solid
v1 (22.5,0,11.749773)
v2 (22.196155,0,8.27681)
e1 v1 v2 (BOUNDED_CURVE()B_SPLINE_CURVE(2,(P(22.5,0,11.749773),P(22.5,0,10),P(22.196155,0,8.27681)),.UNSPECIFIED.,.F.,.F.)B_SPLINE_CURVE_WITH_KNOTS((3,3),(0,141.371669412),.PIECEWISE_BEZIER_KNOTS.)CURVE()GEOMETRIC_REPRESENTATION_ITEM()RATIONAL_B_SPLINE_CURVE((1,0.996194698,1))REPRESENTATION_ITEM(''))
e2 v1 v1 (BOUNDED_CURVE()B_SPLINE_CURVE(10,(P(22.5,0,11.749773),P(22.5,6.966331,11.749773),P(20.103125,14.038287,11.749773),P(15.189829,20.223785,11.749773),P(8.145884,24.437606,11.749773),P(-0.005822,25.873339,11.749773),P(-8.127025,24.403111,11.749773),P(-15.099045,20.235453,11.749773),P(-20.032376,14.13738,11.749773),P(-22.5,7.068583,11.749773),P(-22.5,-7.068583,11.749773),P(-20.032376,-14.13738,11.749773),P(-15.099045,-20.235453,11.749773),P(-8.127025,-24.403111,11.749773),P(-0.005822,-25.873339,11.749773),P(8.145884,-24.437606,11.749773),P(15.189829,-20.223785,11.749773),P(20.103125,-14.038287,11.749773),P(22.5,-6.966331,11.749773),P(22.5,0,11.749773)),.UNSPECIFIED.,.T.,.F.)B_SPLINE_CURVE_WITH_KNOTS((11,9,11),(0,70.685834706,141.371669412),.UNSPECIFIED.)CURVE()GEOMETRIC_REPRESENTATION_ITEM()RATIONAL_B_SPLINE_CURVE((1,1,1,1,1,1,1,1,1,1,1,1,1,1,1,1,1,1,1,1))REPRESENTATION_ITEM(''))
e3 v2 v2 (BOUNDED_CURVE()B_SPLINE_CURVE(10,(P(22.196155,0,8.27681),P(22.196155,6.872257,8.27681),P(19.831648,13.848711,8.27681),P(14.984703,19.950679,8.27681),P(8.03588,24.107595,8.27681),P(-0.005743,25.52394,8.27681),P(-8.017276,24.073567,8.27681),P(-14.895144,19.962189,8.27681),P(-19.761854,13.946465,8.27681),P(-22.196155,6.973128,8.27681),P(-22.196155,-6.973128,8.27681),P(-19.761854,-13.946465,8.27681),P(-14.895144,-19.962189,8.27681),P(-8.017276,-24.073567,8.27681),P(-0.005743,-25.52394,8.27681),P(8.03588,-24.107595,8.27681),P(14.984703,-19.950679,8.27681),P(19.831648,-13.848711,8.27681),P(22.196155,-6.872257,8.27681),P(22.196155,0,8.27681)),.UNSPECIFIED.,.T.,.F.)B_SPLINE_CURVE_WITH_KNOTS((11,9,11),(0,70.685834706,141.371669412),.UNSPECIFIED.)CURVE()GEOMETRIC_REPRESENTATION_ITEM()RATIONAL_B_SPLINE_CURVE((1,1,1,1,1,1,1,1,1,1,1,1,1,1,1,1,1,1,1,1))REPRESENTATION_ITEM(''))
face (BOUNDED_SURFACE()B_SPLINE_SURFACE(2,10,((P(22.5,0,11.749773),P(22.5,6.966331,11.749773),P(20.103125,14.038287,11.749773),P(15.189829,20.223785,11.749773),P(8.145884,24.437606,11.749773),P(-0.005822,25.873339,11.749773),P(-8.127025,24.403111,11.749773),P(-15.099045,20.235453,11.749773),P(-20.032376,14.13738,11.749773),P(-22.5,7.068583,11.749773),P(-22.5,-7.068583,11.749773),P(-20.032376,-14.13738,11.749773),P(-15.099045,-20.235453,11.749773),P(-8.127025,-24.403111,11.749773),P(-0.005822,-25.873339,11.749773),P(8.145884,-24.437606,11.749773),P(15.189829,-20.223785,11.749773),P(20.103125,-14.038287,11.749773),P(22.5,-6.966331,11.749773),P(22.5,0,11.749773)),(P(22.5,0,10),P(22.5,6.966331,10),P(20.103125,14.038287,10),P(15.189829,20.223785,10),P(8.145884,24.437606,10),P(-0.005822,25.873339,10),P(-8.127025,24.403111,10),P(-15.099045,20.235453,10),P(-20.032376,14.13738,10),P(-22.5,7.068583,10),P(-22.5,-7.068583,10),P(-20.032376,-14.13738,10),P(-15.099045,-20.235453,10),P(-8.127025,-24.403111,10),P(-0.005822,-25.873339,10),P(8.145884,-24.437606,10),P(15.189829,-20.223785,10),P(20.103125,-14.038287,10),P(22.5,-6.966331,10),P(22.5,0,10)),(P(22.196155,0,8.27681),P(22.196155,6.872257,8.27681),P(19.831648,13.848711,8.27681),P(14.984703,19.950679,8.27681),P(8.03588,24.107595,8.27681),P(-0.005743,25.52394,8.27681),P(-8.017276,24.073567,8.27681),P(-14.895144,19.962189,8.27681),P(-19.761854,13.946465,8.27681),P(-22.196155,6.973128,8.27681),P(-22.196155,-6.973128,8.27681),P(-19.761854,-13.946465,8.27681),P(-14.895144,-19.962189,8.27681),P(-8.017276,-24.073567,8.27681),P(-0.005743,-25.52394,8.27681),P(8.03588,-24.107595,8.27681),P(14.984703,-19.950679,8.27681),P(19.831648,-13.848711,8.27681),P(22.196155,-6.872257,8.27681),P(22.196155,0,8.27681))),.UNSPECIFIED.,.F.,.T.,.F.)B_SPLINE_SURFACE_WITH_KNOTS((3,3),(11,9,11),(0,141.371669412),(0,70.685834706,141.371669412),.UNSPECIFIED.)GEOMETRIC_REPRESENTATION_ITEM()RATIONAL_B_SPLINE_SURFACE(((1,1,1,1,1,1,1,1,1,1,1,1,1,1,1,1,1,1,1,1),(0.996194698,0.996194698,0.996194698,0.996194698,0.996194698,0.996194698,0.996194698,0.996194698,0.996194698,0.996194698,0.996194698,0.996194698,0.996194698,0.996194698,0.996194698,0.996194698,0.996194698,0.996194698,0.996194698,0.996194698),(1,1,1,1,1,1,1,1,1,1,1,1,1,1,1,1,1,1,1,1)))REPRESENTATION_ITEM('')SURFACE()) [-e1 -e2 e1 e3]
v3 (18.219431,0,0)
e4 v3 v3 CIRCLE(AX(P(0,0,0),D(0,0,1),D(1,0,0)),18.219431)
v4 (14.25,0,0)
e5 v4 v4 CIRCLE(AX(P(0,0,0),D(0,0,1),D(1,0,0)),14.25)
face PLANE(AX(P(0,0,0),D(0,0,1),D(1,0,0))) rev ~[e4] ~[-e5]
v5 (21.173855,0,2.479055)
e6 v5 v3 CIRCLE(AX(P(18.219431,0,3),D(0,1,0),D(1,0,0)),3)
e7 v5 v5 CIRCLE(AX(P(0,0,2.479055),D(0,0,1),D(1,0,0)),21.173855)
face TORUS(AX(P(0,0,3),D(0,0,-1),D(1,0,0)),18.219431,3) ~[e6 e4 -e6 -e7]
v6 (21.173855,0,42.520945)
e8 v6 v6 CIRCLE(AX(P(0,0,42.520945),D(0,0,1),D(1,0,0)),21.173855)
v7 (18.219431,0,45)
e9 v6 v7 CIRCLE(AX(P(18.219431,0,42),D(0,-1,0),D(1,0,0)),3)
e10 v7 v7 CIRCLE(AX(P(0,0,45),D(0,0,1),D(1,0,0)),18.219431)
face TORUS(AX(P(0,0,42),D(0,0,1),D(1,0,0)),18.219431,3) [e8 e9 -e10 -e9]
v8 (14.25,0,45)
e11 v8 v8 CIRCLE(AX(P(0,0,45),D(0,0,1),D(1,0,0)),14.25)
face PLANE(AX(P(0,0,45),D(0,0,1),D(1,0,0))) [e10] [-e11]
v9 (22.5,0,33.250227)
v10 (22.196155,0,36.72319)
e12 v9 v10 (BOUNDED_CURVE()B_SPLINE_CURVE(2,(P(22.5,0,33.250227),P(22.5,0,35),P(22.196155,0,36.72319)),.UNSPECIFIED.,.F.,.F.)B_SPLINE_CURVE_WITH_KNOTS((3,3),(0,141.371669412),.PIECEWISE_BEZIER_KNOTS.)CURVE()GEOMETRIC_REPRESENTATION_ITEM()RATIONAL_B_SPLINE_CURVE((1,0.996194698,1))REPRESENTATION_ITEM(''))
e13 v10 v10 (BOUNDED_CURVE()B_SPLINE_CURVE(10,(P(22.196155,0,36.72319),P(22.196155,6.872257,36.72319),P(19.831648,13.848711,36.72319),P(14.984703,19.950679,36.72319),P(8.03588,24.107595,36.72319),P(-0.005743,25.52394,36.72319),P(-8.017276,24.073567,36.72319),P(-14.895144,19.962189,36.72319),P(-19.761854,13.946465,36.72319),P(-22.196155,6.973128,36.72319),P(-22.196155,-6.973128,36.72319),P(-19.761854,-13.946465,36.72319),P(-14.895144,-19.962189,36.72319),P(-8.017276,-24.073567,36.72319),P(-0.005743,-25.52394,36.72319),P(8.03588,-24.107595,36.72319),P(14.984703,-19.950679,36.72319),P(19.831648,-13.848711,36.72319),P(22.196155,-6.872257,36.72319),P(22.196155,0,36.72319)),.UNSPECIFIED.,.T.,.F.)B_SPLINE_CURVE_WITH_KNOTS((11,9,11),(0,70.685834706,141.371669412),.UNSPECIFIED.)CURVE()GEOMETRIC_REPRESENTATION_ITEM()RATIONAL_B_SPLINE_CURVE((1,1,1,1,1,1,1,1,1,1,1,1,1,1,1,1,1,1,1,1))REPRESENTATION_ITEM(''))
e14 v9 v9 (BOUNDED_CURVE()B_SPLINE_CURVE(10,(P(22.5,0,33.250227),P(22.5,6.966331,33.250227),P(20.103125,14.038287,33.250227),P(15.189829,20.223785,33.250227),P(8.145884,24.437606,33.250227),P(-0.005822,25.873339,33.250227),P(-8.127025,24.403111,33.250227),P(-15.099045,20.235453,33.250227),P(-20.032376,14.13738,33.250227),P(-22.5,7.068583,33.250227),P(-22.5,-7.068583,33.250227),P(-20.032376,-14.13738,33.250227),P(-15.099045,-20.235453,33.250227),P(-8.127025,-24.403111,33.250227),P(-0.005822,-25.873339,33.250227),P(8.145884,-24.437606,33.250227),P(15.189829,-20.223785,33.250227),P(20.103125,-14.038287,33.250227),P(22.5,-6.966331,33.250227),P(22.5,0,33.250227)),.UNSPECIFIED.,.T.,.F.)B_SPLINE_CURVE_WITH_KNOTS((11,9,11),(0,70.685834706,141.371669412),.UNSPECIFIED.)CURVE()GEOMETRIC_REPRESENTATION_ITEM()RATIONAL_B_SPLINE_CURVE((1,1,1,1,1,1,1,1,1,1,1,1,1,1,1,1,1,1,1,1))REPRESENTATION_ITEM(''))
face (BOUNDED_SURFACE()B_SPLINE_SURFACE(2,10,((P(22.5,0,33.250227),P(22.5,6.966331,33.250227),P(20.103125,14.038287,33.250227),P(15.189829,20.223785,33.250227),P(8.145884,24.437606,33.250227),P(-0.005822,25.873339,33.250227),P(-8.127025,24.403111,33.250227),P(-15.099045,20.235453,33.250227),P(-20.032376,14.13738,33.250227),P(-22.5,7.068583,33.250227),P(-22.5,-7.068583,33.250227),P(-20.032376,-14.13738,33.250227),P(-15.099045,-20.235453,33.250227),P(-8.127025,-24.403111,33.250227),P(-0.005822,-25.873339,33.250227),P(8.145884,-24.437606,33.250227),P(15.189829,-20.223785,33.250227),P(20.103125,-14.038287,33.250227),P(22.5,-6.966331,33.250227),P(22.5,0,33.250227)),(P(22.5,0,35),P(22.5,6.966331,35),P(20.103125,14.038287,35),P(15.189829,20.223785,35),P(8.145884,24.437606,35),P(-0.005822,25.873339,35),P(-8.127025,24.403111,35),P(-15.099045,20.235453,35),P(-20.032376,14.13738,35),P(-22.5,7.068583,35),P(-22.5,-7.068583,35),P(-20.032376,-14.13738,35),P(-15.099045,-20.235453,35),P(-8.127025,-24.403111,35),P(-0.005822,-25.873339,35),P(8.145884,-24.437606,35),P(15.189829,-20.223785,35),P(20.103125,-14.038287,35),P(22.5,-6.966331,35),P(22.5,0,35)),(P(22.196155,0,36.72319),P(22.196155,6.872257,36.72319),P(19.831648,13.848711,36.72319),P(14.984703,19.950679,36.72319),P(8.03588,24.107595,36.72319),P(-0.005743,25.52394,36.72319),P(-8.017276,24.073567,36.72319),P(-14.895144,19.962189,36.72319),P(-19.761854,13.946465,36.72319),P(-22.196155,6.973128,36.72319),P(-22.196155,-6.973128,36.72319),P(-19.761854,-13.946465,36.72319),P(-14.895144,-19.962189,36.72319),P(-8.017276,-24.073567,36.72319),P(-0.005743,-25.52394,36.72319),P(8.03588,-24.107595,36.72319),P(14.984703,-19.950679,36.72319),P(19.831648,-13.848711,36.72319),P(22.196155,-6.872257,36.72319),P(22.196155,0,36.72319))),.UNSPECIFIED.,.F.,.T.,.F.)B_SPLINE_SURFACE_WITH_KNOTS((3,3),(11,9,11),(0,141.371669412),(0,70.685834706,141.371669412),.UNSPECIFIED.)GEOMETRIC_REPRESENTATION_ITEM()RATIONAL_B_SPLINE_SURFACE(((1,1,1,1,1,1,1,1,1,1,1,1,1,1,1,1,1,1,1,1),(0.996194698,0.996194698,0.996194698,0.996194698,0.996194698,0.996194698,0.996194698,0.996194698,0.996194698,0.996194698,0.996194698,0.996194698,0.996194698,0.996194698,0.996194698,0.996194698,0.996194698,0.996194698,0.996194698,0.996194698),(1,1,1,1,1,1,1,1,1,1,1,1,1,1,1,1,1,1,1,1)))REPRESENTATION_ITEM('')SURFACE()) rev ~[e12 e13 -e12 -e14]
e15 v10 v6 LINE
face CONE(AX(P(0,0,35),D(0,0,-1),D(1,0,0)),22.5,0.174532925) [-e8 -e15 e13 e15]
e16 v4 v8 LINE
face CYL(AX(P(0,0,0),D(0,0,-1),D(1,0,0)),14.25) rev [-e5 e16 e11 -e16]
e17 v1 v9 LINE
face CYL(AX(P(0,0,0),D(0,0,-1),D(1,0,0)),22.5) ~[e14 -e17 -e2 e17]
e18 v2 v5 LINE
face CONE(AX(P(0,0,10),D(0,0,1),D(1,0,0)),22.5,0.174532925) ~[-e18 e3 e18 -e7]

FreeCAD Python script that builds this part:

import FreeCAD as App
import Part
import Sketcher


def edges_at(feature, points):
    """Names of the edges that pass closest to the given points."""
    edges = feature.Shape.Edges
    near = lambda p: min(range(len(edges)), key=lambda i: edges[i].distToShape(Part.Vertex(*p))[0])
    return sorted({f"Edge{near(p) + 1}" for p in points})

doc = App.newDocument("Part")
body = doc.addObject("PartDesign::Body", "Body")

# Sketch on XY plane
sketch1 = body.newObject("Sketcher::SketchObject", "Sketch")
sketch1.AttachmentSupport = (doc.getObject("XY_Plane"), [""])
sketch1.MapMode = "FlatFace"
sketch1.addGeometry([
    Part.Circle(App.Vector(0, 0, 0), App.Vector(0, 0, 1), 22),
    Part.Circle(App.Vector(0, 0, 0), App.Vector(0, 0, 1), 14),
], False)
sketch1.addConstraint([
    Sketcher.Constraint("Coincident", 0, 3, -1, 1),
    Sketcher.Constraint("Coincident", 1, 3, -1, 1),
    Sketcher.Constraint("Diameter", 0, 45.0),
    Sketcher.Constraint("Diameter", 1, 28.5),
])
pad1 = body.newObject("PartDesign::Pad", "Pad")
pad1.Profile = sketch1
pad1.Length = 45
doc.recompute()

chamfer = body.newObject("PartDesign::Chamfer", "Chamfer")
chamfer.Base = (pad1, edges_at(pad1, [(-22.5, 0, 0), (-22.5, 0, 45)]))
chamfer.ChamferType = "Two distances"
chamfer.Size = 10
chamfer.Size2 = 1.76327
doc.recompute()

fillet = body.newObject("PartDesign::Fillet", "Fillet")
fillet.Base = (chamfer, edges_at(chamfer, [(22.5, 0, 22.5), (-22.5, 0, 10), (-22.5, 0, 35)]))
fillet.Radius = 20
doc.recompute()

fillet2 = body.newObject("PartDesign::Fillet", "Fillet001")
fillet2.Base = (fillet, edges_at(fillet, [(-20.737, 0, 45), (-20.737, 0, 0)]))
fillet2.Radius = 3

doc.recompute()
